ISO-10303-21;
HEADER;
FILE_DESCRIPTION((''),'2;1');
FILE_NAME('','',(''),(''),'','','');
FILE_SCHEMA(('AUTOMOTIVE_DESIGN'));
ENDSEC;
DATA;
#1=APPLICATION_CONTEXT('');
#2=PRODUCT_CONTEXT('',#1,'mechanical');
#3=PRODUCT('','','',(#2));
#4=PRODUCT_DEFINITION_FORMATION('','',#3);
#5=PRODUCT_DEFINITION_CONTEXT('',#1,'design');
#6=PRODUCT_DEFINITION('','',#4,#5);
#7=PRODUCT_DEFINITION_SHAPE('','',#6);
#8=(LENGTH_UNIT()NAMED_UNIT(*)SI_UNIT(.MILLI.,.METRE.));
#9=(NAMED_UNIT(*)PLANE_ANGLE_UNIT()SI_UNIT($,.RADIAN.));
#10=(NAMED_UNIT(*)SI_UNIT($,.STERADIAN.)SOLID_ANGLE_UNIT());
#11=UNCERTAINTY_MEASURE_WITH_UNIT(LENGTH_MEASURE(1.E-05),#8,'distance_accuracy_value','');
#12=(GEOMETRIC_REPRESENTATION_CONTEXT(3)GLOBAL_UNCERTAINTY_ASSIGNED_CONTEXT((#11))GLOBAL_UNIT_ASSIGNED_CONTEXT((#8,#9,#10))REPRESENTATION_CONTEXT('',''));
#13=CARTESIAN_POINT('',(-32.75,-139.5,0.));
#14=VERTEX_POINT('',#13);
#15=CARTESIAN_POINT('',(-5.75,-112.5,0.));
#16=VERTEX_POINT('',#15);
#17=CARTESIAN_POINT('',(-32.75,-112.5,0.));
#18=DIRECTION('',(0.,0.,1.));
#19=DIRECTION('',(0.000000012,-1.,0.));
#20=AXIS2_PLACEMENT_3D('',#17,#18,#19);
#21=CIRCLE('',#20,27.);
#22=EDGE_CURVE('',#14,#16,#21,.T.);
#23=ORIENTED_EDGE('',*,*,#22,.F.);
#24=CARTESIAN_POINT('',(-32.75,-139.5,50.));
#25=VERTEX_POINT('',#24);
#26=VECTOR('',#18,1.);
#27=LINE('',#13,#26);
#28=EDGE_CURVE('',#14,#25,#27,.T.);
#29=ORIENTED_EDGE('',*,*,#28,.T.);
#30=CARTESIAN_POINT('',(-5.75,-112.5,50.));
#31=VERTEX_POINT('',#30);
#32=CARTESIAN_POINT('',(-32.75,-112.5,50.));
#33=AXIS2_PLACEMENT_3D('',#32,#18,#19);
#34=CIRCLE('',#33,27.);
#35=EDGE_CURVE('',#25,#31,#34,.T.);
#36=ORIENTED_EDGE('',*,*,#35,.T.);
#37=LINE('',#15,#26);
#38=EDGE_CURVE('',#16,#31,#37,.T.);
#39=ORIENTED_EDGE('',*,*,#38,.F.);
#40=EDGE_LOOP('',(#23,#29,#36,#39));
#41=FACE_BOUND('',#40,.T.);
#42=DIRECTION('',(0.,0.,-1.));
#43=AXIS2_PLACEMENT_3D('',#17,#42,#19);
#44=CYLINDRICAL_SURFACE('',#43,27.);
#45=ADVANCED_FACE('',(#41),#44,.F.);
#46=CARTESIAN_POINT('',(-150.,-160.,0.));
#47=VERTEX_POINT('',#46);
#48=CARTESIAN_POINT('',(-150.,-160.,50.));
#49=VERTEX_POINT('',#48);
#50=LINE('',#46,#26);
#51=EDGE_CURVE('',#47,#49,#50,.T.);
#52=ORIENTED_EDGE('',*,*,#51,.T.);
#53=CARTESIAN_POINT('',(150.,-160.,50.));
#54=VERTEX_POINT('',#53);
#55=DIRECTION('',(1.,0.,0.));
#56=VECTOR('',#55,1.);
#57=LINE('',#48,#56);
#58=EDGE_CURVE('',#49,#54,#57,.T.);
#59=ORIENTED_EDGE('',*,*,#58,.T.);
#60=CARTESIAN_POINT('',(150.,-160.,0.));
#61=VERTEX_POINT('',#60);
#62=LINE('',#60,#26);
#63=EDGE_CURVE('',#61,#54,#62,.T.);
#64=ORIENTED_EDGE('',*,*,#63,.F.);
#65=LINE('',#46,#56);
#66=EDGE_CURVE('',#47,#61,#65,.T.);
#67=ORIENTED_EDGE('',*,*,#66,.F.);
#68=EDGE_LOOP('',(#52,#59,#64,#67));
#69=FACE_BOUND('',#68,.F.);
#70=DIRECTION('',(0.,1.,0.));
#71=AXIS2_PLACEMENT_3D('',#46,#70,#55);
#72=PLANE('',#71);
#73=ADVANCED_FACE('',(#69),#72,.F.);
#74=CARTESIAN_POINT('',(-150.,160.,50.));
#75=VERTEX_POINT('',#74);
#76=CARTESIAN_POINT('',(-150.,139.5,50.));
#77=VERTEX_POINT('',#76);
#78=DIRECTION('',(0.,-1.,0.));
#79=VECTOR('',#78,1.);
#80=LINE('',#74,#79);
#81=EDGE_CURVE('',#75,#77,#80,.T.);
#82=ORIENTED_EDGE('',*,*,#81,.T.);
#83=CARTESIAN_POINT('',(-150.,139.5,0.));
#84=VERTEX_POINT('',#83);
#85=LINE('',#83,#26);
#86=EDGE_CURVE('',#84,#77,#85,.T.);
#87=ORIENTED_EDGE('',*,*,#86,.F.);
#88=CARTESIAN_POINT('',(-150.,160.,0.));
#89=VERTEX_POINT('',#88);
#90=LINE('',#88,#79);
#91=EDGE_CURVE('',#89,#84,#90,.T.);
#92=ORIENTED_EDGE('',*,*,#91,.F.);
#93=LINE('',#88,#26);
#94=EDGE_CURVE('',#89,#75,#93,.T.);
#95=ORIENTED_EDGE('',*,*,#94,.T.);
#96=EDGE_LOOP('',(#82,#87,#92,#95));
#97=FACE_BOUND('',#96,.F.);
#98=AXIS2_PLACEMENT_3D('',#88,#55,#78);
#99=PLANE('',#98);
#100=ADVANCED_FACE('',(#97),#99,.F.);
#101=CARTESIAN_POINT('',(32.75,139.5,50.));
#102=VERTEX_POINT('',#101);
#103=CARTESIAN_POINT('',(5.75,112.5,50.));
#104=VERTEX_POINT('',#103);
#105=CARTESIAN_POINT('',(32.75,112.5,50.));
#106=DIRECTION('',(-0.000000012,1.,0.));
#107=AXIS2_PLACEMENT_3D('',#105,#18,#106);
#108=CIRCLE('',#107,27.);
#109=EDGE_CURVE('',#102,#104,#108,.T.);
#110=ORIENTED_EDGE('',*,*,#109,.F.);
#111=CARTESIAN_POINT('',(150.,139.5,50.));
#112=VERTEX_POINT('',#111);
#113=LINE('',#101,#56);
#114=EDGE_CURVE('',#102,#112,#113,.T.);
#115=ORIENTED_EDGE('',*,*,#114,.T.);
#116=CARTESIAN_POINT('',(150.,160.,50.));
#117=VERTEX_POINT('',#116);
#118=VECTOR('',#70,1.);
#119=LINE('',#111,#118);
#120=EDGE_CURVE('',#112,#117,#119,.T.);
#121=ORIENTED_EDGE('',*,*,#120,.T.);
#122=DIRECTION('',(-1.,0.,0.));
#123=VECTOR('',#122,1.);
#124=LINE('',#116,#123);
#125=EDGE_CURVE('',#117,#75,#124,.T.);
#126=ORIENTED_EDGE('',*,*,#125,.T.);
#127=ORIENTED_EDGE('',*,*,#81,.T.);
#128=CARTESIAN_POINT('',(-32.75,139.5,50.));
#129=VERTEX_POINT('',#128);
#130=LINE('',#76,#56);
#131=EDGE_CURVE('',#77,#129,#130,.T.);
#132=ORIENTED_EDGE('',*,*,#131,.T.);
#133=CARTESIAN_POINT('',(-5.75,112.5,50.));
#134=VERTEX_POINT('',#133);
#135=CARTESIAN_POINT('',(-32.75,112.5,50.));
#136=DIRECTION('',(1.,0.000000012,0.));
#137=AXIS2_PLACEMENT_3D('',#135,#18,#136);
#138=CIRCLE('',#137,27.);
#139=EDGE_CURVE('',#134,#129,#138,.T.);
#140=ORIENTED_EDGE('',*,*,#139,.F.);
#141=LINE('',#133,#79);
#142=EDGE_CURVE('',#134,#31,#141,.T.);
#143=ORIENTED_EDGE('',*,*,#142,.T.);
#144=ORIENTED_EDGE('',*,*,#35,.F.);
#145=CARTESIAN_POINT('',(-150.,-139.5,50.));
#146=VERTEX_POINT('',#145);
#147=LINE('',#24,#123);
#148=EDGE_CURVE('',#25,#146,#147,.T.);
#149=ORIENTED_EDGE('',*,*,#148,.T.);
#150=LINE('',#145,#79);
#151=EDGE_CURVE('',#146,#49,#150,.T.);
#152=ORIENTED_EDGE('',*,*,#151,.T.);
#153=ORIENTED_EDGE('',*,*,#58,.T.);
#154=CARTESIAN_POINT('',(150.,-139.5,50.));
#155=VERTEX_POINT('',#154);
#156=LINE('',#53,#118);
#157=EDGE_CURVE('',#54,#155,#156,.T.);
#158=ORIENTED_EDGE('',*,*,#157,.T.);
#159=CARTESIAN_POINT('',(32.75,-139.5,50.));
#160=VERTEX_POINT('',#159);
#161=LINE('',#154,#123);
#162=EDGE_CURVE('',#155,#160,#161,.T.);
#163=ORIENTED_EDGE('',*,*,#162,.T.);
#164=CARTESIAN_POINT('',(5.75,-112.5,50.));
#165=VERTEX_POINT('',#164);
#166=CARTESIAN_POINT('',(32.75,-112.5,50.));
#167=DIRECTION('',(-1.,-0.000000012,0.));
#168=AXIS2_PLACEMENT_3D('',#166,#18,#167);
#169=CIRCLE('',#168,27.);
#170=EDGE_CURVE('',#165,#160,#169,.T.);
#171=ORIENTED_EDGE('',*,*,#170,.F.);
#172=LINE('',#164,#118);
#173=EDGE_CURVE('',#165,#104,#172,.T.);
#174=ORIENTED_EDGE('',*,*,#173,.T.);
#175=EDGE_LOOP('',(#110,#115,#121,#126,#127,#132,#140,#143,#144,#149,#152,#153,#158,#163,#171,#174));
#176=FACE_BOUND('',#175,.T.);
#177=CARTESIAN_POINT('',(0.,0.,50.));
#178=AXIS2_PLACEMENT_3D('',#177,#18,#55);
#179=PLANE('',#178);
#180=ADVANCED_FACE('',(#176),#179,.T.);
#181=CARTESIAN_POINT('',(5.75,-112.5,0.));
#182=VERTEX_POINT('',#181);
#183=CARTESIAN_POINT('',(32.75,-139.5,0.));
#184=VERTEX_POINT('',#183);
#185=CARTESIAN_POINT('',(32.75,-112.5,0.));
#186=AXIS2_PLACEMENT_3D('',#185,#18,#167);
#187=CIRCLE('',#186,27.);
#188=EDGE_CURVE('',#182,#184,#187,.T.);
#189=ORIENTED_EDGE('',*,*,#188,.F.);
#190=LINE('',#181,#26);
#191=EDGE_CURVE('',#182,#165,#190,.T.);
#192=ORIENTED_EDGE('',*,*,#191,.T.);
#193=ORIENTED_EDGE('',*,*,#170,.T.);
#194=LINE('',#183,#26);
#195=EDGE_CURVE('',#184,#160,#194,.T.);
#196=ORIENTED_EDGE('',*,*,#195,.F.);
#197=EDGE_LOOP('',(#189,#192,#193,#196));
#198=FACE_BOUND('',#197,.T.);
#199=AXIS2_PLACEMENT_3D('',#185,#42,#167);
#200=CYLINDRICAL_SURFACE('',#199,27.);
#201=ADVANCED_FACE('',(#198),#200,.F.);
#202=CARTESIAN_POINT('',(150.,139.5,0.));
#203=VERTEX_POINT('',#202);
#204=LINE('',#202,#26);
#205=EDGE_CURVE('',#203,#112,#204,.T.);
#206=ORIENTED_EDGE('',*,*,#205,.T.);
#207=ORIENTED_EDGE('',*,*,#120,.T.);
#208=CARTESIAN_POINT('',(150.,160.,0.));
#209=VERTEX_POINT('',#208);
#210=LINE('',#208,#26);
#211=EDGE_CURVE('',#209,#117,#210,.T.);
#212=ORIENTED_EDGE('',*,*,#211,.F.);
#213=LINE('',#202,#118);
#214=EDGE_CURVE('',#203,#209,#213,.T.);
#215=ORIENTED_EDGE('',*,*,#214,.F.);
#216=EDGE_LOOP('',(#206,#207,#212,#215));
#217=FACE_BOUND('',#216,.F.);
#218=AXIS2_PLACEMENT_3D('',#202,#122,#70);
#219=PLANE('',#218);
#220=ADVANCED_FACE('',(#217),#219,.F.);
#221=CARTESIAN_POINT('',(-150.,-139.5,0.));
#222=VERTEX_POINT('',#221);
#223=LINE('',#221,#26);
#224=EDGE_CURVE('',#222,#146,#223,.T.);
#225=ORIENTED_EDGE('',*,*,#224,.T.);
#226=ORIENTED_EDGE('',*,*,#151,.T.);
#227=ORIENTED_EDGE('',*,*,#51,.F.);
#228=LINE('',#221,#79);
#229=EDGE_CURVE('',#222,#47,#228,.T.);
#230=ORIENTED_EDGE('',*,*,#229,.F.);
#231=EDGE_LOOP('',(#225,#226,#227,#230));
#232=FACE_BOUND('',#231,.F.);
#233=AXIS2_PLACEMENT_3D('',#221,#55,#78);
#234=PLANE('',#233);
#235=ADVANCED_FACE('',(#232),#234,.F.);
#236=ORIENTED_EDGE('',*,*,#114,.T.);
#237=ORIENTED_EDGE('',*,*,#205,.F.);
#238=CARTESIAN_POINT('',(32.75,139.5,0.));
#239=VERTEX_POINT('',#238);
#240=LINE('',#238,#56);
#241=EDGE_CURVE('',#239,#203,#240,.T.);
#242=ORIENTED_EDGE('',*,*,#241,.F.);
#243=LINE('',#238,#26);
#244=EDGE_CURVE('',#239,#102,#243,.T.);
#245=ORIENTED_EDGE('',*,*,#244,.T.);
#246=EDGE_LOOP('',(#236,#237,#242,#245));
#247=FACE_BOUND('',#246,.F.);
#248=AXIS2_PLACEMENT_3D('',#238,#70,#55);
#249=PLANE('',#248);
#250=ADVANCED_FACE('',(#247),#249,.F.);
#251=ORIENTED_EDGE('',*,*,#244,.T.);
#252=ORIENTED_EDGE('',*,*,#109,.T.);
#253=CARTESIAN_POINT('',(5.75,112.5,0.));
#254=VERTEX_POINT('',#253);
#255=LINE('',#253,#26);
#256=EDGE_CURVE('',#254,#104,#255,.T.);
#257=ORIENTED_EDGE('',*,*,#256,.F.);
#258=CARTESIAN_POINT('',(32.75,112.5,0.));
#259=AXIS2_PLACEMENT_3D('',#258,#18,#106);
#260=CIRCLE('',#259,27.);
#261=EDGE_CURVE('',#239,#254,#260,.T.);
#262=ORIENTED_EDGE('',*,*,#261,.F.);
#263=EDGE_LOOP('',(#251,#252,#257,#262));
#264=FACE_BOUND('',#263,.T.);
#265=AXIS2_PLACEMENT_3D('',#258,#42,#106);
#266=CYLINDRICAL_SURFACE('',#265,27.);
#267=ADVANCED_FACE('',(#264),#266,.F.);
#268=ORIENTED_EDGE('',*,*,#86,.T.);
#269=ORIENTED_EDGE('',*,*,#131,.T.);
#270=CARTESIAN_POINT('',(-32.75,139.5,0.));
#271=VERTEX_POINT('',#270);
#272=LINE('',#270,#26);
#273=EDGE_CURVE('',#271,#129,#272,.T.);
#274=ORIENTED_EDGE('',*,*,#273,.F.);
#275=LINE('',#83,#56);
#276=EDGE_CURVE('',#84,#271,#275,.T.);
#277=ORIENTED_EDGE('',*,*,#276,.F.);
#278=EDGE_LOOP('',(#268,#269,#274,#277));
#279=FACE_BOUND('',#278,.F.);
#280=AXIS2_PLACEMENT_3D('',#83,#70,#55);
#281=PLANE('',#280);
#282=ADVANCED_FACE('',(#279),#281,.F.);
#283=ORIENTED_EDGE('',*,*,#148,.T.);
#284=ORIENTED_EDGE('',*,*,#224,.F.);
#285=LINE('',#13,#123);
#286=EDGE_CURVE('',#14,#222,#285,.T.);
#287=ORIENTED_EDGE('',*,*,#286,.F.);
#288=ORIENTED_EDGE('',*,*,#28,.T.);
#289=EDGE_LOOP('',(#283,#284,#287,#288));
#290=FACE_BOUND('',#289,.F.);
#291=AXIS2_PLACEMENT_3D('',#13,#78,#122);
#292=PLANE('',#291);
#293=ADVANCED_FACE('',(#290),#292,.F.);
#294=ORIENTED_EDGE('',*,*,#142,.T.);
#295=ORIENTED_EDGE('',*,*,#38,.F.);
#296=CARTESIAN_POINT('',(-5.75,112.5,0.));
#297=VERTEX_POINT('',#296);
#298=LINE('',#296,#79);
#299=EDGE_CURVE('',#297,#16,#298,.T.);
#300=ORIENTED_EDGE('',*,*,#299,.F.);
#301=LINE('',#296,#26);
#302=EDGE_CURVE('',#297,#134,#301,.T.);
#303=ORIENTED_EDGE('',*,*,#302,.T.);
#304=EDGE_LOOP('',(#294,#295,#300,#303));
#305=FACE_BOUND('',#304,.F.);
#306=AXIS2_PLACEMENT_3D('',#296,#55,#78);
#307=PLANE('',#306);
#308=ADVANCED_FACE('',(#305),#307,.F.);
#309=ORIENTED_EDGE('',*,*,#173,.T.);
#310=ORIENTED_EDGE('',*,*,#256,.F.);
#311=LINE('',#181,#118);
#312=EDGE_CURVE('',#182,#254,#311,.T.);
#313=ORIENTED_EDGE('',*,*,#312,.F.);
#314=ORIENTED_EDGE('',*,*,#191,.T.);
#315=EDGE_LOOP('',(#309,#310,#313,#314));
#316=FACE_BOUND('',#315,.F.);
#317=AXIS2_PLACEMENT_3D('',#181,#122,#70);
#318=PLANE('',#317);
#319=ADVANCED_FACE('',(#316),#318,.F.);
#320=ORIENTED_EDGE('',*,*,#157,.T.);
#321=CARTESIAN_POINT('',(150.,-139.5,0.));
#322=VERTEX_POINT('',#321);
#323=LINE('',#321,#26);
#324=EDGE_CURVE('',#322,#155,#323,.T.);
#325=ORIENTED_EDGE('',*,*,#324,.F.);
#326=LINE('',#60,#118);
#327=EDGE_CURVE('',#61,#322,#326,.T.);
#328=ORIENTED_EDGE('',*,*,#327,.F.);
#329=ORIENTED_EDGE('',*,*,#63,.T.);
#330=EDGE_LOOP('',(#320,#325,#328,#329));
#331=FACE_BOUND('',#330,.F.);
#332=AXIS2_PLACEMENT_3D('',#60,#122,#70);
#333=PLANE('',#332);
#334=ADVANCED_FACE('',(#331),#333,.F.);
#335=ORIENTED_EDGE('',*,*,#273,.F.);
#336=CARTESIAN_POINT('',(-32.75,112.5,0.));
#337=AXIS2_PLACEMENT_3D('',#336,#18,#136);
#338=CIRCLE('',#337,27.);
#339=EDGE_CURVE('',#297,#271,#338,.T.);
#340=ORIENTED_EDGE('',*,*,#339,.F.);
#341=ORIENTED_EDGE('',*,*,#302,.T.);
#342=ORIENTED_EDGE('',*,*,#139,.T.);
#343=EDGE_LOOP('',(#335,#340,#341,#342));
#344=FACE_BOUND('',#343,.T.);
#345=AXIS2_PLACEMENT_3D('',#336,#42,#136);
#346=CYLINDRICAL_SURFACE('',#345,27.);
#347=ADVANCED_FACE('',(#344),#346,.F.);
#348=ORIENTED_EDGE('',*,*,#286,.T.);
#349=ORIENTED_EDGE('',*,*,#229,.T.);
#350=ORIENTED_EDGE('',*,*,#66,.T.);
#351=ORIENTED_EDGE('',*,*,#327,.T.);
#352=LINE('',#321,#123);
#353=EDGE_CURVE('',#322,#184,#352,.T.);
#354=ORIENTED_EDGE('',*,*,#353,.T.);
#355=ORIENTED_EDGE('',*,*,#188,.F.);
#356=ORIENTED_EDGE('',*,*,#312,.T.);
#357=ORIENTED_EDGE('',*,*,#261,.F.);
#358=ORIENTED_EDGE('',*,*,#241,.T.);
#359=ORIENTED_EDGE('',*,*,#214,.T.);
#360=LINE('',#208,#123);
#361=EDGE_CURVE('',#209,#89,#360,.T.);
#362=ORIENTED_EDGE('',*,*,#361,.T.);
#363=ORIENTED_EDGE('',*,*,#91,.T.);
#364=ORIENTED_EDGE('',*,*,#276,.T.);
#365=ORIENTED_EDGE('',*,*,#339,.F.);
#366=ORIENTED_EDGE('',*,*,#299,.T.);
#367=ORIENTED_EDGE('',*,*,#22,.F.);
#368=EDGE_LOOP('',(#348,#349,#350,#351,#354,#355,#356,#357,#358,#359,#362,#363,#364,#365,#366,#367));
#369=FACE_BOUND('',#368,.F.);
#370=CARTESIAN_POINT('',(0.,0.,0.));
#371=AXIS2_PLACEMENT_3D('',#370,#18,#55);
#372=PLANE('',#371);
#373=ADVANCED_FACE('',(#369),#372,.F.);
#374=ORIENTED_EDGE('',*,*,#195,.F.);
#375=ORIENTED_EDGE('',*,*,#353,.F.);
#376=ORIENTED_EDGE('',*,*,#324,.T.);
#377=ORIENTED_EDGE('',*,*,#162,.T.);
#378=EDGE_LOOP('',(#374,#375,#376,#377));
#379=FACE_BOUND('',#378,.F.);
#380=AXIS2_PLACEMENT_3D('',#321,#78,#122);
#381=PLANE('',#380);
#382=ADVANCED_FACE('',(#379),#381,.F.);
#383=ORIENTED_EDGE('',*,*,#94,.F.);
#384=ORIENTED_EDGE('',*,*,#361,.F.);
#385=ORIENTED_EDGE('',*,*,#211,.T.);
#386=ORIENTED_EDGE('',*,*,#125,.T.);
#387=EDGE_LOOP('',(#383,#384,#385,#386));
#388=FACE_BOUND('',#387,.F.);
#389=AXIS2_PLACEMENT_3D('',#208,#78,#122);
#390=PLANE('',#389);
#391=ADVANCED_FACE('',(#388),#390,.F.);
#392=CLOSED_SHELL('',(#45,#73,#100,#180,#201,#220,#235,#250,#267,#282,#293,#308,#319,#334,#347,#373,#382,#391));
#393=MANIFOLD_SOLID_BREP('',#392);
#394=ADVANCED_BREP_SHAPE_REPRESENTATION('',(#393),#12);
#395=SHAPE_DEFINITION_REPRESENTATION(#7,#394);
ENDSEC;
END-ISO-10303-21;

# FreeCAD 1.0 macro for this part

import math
import FreeCAD as App
import Part
import Sketcher
Q = App.Units.Quantity

doc = App.newDocument("Part")
body = doc.addObject("PartDesign::Body", "Body")

# Sketch on XY plane
sketch1 = body.newObject("Sketcher::SketchObject", "Sketch")
sketch1.AttachmentSupport = (doc.getObject("XY_Plane"), [""])
sketch1.MapMode = "FlatFace"
sketch1.addGeometry(Part.LineSegment(App.Vector(6, -112, 0), App.Vector(6, 112, 0)), False)
sketch1.addGeometry(Part.ArcOfCircle(Part.Circle(App.Vector(33, 112, 0), App.Vector(0, 0, 1), 27), math.radians(90), math.radians(180)), False)
sketch1.addGeometry(Part.LineSegment(App.Vector(33, 140, 0), App.Vector(150, 140, 0)), False)
sketch1.addGeometry(Part.LineSegment(App.Vector(150, 140, 0), App.Vector(150, 160, 0)), False)
sketch1.addGeometry(Part.LineSegment(App.Vector(150, 160, 0), App.Vector(-150, 160, 0)), False)
sketch1.addGeometry(Part.LineSegment(App.Vector(-150, 160, 0), App.Vector(-150, 140, 0)), False)
sketch1.addGeometry(Part.LineSegment(App.Vector(-150, 140, 0), App.Vector(-33, 140, 0)), False)
sketch1.addGeometry(Part.ArcOfCircle(Part.Circle(App.Vector(-33, 112, 0), App.Vector(0, 0, 1), 27), math.radians(0), math.radians(90)), False)
sketch1.addGeometry(Part.LineSegment(App.Vector(-6, 112, 0), App.Vector(-6, -112, 0)), False)
sketch1.addGeometry(Part.ArcOfCircle(Part.Circle(App.Vector(-33, -112, 0), App.Vector(0, 0, 1), 27), math.radians(-90), math.radians(0)), False)
sketch1.addGeometry(Part.LineSegment(App.Vector(-33, -140, 0), App.Vector(-150, -140, 0)), False)
sketch1.addGeometry(Part.LineSegment(App.Vector(-150, -140, 0), App.Vector(-150, -160, 0)), False)
sketch1.addGeometry(Part.LineSegment(App.Vector(-150, -160, 0), App.Vector(150, -160, 0)), False)
sketch1.addGeometry(Part.LineSegment(App.Vector(150, -160, 0), App.Vector(150, -140, 0)), False)
sketch1.addGeometry(Part.LineSegment(App.Vector(150, -140, 0), App.Vector(33, -140, 0)), False)
sketch1.addGeometry(Part.ArcOfCircle(Part.Circle(App.Vector(33, -112, 0), App.Vector(0, 0, 1), 27), math.radians(-180), math.radians(-90)), False)
sketch1.addConstraint(Sketcher.Constraint("Tangent", 0, 2, 1, 2))
sketch1.addConstraint(Sketcher.Constraint("Tangent", 1, 1, 2, 1))
sketch1.addConstraint(Sketcher.Constraint("Coincident", 2, 2, 3, 1))
sketch1.addConstraint(Sketcher.Constraint("Coincident", 3, 2, 4, 1))
sketch1.addConstraint(Sketcher.Constraint("Coincident", 4, 2, 5, 1))
sketch1.addConstraint(Sketcher.Constraint("Coincident", 5, 2, 6, 1))
sketch1.addConstraint(Sketcher.Constraint("Tangent", 6, 2, 7, 2))
sketch1.addConstraint(Sketcher.Constraint("Tangent", 7, 1, 8, 1))
sketch1.addConstraint(Sketcher.Constraint("Tangent", 8, 2, 9, 2))
sketch1.addConstraint(Sketcher.Constraint("Tangent", 9, 1, 10, 1))
sketch1.addConstraint(Sketcher.Constraint("Coincident", 10, 2, 11, 1))
sketch1.addConstraint(Sketcher.Constraint("Coincident", 11, 2, 12, 1))
sketch1.addConstraint(Sketcher.Constraint("Coincident", 12, 2, 13, 1))
sketch1.addConstraint(Sketcher.Constraint("Coincident", 13, 2, 14, 1))
sketch1.addConstraint(Sketcher.Constraint("Tangent", 14, 2, 15, 2))
sketch1.addConstraint(Sketcher.Constraint("Tangent", 15, 1, 0, 1))
sketch1.addConstraint(Sketcher.Constraint("Vertical", 0))
sketch1.addConstraint(Sketcher.Constraint("Horizontal", 2))
sketch1.addConstraint(Sketcher.Constraint("Vertical", 3))
sketch1.addConstraint(Sketcher.Constraint("Horizontal", 4))
sketch1.addConstraint(Sketcher.Constraint("Vertical", 5))
sketch1.addConstraint(Sketcher.Constraint("Horizontal", 6))
sketch1.addConstraint(Sketcher.Constraint("Vertical", 8))
sketch1.addConstraint(Sketcher.Constraint("Horizontal", 10))
sketch1.addConstraint(Sketcher.Constraint("Vertical", 11))
sketch1.addConstraint(Sketcher.Constraint("Horizontal", 12))
sketch1.addConstraint(Sketcher.Constraint("Vertical", 13))
sketch1.addConstraint(Sketcher.Constraint("Horizontal", 14))
sketch1.addConstraint(Sketcher.Constraint("Equal", 1, 7))
sketch1.addConstraint(Sketcher.Constraint("Equal", 7, 9))
sketch1.addConstraint(Sketcher.Constraint("Equal", 9, 15))
sketch1.addConstraint(Sketcher.Constraint("Symmetric", 1, 3, 9, 3, -1, 1))
sketch1.addConstraint(Sketcher.Constraint("Symmetric", 3, 2, 11, 2, -1, 1))
sketch1.addConstraint(Sketcher.Constraint("Symmetric", 5, 2, 13, 2, -1, 1))
sketch1.addConstraint(Sketcher.Constraint("Symmetric", 2, 2, 5, 2, -2))
sketch1.addConstraint(Sketcher.Constraint("Radius", 1, Q("27 mm")))
sketch1.addConstraint(Sketcher.Constraint("DistanceX", 4, 2, 4, 1, Q("300 mm")))
sketch1.addConstraint(Sketcher.Constraint("DistanceY", 0, 1, 0, 2, Q("225 mm")))
sketch1.addConstraint(Sketcher.Constraint("DistanceY", 3, 1, 3, 2, Q("20.5 mm")))
sketch1.addConstraint(Sketcher.Constraint("DistanceX", 2, 1, 2, 2, Q("117.25 mm")))
pad1 = body.newObject("PartDesign::Pad", "Pad")
pad1.Profile = sketch1
pad1.Length = 50

doc.recompute()
